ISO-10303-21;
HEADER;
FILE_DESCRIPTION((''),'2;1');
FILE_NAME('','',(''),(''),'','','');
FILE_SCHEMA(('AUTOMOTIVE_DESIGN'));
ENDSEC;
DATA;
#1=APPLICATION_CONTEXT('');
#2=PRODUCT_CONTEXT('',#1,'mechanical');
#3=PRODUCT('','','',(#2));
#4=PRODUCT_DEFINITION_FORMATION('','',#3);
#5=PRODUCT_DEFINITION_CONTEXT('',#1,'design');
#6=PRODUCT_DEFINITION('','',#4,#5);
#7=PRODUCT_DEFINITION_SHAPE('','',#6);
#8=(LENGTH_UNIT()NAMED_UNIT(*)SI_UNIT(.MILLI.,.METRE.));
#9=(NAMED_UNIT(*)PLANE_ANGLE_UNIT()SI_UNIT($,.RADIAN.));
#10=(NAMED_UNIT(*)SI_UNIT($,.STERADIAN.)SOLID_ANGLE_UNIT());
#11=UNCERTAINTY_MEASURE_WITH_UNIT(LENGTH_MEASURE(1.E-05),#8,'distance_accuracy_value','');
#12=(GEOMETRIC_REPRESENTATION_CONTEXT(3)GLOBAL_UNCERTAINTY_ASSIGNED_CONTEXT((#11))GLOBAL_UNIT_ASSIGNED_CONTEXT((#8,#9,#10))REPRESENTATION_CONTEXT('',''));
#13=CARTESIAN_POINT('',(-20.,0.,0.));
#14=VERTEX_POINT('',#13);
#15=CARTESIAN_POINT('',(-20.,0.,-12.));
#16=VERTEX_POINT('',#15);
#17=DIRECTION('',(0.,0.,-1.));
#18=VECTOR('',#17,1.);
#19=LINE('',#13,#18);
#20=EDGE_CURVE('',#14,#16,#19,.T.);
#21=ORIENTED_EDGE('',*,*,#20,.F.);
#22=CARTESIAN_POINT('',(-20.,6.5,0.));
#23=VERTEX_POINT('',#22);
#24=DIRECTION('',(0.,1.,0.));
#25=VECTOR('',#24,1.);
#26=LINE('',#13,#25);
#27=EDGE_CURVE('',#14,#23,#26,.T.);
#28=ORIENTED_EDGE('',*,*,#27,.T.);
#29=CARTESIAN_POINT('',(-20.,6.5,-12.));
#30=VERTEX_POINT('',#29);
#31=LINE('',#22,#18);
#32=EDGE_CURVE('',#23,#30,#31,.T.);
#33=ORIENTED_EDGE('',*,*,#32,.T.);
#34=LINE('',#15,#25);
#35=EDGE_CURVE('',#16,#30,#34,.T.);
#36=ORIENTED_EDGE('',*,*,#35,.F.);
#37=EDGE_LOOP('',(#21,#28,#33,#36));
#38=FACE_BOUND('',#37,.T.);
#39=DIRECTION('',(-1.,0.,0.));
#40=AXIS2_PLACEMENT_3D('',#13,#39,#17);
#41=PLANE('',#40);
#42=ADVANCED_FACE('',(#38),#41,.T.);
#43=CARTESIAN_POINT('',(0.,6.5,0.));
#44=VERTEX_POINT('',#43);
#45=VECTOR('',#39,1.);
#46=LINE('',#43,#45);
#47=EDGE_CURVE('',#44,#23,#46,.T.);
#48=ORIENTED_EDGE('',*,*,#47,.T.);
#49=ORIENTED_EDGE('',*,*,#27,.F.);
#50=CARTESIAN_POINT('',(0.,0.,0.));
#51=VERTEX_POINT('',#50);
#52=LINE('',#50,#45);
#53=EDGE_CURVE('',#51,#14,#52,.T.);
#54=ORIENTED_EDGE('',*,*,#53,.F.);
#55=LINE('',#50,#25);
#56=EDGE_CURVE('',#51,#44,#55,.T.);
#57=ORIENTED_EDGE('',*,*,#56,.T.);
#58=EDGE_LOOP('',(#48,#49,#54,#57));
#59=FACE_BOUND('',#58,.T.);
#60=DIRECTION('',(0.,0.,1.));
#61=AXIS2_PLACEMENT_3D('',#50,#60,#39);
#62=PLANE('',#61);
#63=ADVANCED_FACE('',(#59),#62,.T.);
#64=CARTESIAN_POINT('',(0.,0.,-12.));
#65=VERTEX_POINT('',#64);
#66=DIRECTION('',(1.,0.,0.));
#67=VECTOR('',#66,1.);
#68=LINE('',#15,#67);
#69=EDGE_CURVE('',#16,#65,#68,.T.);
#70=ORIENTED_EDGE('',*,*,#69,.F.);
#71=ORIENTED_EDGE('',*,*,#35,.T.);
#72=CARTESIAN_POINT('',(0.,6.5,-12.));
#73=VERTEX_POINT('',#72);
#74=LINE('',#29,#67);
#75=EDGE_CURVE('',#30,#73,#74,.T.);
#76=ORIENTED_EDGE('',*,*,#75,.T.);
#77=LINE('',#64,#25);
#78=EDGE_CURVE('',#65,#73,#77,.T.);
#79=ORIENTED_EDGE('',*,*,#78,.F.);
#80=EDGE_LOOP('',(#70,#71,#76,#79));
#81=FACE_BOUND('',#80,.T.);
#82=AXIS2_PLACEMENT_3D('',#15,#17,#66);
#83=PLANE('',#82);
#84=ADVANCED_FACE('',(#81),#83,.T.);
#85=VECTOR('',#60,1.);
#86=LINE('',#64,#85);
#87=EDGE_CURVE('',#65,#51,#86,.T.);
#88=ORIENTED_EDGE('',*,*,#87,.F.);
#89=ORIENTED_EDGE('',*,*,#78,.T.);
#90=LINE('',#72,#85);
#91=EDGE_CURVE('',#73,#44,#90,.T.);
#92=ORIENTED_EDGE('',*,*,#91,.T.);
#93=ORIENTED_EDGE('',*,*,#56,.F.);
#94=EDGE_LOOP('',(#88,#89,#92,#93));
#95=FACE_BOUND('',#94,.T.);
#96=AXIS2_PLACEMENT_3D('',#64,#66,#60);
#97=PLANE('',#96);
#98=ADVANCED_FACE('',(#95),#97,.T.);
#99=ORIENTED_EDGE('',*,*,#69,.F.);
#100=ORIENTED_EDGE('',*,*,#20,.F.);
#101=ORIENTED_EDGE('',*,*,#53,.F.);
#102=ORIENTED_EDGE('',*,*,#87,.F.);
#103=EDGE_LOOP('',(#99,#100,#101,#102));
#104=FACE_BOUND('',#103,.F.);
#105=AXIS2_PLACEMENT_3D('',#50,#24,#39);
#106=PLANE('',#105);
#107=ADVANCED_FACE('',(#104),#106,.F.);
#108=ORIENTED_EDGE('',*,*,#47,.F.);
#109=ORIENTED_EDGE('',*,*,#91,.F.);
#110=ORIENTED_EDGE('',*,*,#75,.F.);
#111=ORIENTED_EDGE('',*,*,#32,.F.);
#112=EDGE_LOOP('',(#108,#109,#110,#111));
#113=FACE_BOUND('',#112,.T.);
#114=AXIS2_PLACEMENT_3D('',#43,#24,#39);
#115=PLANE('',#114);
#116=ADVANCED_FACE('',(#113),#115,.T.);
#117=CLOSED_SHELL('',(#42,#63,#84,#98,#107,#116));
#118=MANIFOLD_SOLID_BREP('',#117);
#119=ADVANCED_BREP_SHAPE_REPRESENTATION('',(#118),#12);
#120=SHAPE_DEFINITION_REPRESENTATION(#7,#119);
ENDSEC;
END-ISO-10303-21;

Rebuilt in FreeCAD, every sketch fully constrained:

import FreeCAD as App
import Part
import Sketcher

V = App.Vector


def add_polygon(sketch, points):
    """Adds a closed chain of lines whose ends are joined by coincident constraints."""
    first, n = sketch.GeometryCount, len(points)
    for a, b in zip(points, points[1:] + points[:1]):
        sketch.addGeometry(Part.LineSegment(App.Vector(*a, 0), App.Vector(*b, 0)), False)
    for i in range(n):
        sketch.addConstraint(Sketcher.Constraint("Coincident", first + i, 2, first + (i + 1) % n, 1))

doc = App.newDocument("Part")
body = doc.addObject("PartDesign::Body", "Body")

sketch1 = body.newObject("Sketcher::SketchObject", "Sketch")
sketch1.AttachmentSupport = (doc.getObject("XZ_Plane"), [""])
sketch1.MapMode = "FlatFace"
add_polygon(sketch1, [(-20, 0), (0, 0), (0, -12), (-20, -12)])
sketch1.addConstraint([
    Sketcher.Constraint("Horizontal", 0),
    Sketcher.Constraint("Vertical", 1),
    Sketcher.Constraint("Horizontal", 2),
    Sketcher.Constraint("Vertical", 3),
    Sketcher.Constraint("Coincident", 0, 2, -1, 1),
    Sketcher.Constraint("DistanceX", 0, 1, 0, 2, 20.0),
    Sketcher.Constraint("DistanceY", 1, 2, 1, 1, 12.0),
])
pad1 = body.newObject("PartDesign::Pad", "Pad")
pad1.Profile = sketch1
pad1.Length = 6.5
pad1.Reversed = True

doc.recompute()
